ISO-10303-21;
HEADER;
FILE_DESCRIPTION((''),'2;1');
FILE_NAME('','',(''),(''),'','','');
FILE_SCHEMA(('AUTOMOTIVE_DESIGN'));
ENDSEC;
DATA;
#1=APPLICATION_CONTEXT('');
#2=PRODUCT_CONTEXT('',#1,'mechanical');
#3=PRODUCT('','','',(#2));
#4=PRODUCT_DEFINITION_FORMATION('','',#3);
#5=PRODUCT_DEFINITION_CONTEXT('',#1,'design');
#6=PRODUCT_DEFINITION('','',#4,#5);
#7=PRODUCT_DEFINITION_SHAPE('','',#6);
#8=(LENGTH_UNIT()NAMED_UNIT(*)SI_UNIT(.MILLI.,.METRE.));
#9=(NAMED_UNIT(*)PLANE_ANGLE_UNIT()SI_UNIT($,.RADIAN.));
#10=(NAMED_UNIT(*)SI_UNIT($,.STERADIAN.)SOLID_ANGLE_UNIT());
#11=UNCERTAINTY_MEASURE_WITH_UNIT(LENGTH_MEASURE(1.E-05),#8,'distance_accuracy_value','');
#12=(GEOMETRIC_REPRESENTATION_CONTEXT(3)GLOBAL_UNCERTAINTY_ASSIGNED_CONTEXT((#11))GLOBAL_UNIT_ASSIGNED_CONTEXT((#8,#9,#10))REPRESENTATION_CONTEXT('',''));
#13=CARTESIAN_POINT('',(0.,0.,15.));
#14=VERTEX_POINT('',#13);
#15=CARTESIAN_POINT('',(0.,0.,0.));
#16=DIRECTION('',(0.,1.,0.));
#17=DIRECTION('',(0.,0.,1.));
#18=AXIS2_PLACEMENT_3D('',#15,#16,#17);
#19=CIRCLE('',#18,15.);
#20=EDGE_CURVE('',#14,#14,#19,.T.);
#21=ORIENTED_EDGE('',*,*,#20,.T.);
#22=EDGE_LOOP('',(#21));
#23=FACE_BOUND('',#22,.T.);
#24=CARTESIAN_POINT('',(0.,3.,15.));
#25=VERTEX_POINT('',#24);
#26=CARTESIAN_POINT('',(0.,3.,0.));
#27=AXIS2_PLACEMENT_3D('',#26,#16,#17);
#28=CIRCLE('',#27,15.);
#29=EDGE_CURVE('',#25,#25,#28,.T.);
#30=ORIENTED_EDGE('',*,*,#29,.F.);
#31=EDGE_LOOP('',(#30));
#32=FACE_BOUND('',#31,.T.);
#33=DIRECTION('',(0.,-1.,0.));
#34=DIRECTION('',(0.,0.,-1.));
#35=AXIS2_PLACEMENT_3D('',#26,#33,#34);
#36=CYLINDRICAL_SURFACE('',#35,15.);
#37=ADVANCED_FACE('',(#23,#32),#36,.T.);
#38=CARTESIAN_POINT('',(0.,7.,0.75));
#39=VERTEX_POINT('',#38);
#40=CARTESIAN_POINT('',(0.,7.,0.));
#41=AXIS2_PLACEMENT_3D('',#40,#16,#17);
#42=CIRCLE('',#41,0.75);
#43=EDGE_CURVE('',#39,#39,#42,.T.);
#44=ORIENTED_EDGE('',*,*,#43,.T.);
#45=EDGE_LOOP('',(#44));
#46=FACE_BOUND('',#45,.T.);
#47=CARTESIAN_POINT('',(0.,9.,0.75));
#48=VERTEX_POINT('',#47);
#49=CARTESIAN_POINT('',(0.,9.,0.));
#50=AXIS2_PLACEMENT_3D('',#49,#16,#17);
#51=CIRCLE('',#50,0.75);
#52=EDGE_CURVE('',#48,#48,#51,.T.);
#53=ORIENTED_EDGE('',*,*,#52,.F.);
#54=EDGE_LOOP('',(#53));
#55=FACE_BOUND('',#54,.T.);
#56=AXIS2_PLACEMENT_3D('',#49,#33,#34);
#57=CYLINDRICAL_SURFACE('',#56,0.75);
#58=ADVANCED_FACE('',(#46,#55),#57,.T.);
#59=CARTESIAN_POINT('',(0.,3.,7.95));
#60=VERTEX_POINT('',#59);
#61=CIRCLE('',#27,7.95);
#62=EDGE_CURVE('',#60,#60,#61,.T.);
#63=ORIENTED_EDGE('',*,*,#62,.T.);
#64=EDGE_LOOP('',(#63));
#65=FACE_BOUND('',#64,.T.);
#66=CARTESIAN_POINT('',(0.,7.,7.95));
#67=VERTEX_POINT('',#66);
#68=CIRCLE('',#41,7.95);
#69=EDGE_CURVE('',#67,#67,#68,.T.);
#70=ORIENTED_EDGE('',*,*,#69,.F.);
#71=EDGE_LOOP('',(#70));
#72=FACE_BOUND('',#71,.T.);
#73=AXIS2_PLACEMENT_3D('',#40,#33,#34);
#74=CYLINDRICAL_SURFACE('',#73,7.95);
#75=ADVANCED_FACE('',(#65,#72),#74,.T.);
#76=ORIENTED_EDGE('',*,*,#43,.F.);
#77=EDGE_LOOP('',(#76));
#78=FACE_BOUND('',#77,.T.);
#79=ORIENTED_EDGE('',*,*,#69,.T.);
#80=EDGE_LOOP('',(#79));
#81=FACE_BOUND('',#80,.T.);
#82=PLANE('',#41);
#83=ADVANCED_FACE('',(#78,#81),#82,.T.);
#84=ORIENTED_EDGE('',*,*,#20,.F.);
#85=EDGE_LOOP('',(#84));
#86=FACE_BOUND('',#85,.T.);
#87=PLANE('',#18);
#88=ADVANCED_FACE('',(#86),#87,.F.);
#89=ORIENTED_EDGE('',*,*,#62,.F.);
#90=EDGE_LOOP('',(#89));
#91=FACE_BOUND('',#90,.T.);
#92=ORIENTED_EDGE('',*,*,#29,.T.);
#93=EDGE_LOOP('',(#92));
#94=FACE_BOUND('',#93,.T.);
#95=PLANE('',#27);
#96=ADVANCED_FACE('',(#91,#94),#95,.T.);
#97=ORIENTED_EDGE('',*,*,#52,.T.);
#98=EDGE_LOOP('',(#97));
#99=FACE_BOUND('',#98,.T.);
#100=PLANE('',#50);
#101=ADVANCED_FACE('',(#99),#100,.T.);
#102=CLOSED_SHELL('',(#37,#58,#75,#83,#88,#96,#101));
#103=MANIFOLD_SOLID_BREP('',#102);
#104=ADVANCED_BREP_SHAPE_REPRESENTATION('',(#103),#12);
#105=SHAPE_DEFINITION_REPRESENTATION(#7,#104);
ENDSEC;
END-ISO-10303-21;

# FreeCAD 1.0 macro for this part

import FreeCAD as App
import Part
import Sketcher

doc = App.newDocument("Part")
body = doc.addObject("PartDesign::Body", "Body")

# Sketch on XZ plane
sketch1 = body.newObject("Sketcher::SketchObject", "Sketch")
sketch1.AttachmentSupport = (doc.getObject("XZ_Plane"), [""])
sketch1.MapMode = "FlatFace"
sketch1.addGeometry(Part.Circle(App.Vector(0, 0, 0), App.Vector(0, 0, 1), 15), False)
sketch1.addConstraint(Sketcher.Constraint("Coincident", 0, 3, -1, 1))
sketch1.addConstraint(Sketcher.Constraint("Diameter", 0, 30.0))
pad1 = body.newObject("PartDesign::Pad", "Pad")
pad1.Profile = sketch1
pad1.Length = 3
pad1.Reversed = True

# Sketch on XZ plane
sketch2 = body.newObject("Sketcher::SketchObject", "Sketch001")
sketch2.AttachmentSupport = (doc.getObject("XZ_Plane"), [""])
sketch2.MapMode = "FlatFace"
sketch2.AttachmentOffset = App.Placement(App.Vector(0, 0, -3), App.Rotation())
sketch2.addGeometry(Part.Circle(App.Vector(0, 0, 0), App.Vector(0, 0, 1), 8), False)
sketch2.addConstraint(Sketcher.Constraint("Coincident", 0, 3, -1, 1))
sketch2.addConstraint(Sketcher.Constraint("Diameter", 0, 15.9))
pad2 = body.newObject("PartDesign::Pad", "Pad001")
pad2.Profile = sketch2
pad2.Length = 4
pad2.Reversed = True

# Sketch on XZ plane
sketch3 = body.newObject("Sketcher::SketchObject", "Sketch002")
sketch3.AttachmentSupport = (doc.getObject("XZ_Plane"), [""])
sketch3.MapMode = "FlatFace"
sketch3.AttachmentOffset = App.Placement(App.Vector(0, 0, -7), App.Rotation())
sketch3.addGeometry(Part.Circle(App.Vector(0, 0, 0), App.Vector(0, 0, 1), 0.8), False)
sketch3.addConstraint(Sketcher.Constraint("Coincident", 0, 3, -1, 1))
sketch3.addConstraint(Sketcher.Constraint("Diameter", 0, 1.5))
pad3 = body.newObject("PartDesign::Pad", "Pad002")
pad3.Profile = sketch3
pad3.Length = 2
pad3.Reversed = True

doc.recompute()
